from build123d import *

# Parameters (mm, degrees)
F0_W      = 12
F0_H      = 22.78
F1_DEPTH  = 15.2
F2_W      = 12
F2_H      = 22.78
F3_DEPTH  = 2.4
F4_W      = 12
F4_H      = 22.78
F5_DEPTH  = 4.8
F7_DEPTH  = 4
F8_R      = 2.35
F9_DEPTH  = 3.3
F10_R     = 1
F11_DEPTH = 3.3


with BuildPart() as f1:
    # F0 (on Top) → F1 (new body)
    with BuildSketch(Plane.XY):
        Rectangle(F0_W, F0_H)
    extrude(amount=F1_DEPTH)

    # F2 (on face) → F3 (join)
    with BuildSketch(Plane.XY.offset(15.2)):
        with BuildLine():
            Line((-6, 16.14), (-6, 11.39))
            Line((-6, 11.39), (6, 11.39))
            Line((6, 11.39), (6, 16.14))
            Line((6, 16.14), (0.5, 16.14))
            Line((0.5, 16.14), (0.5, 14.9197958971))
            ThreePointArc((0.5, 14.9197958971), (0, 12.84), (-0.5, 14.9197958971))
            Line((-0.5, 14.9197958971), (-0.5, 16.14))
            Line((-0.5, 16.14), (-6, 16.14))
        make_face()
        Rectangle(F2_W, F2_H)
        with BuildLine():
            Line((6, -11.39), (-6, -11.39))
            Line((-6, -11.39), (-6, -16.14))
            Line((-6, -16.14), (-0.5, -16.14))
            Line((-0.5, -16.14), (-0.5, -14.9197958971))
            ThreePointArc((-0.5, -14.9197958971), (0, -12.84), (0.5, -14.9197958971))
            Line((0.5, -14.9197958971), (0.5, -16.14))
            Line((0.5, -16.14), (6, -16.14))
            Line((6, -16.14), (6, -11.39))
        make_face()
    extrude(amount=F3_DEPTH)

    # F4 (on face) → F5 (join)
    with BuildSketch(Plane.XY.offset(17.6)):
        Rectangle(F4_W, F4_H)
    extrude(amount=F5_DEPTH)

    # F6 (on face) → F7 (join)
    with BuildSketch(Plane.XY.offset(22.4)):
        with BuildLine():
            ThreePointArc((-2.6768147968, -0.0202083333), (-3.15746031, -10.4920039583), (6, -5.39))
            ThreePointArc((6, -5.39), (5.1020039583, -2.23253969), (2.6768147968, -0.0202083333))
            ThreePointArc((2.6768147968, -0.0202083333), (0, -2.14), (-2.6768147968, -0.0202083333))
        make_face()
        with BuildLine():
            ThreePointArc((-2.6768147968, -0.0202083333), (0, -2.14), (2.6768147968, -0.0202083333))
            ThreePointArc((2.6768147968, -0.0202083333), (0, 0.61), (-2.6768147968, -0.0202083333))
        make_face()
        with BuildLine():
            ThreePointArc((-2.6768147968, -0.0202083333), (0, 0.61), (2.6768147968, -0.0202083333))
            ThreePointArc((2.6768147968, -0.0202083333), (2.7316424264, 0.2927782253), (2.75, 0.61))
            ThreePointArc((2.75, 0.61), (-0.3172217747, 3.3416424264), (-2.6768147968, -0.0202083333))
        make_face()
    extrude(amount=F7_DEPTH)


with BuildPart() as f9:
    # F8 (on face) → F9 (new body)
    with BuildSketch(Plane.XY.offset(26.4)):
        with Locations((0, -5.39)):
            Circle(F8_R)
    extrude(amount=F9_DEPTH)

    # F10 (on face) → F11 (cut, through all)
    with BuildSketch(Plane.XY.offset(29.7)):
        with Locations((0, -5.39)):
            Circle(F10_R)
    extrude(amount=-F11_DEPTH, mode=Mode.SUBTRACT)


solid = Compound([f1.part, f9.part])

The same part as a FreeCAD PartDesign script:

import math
import FreeCAD as App
import Part
import Sketcher
Q = App.Units.Quantity

doc = App.newDocument("Part")
body = doc.addObject("PartDesign::Body", "Body")

# Sketch on XY plane
sketch1 = body.newObject("Sketcher::SketchObject", "Sketch")
sketch1.AttachmentSupport = (doc.getObject("XY_Plane"), [""])
sketch1.MapMode = "FlatFace"
sketch1.addGeometry(Part.LineSegment(App.Vector(-6, 11, 0), App.Vector(-6, -11, 0)), False)
sketch1.addGeometry(Part.LineSegment(App.Vector(-6, -11, 0), App.Vector(6, -11, 0)), False)
sketch1.addGeometry(Part.LineSegment(App.Vector(6, -11, 0), App.Vector(6, 11, 0)), False)
sketch1.addGeometry(Part.LineSegment(App.Vector(6, 11, 0), App.Vector(-6, 11, 0)), False)
sketch1.addConstraint(Sketcher.Constraint("Coincident", 0, 2, 1, 1))
sketch1.addConstraint(Sketcher.Constraint("Coincident", 1, 2, 2, 1))
sketch1.addConstraint(Sketcher.Constraint("Coincident", 2, 2, 3, 1))
sketch1.addConstraint(Sketcher.Constraint("Coincident", 3, 2, 0, 1))
sketch1.addConstraint(Sketcher.Constraint("Vertical", 0))
sketch1.addConstraint(Sketcher.Constraint("Horizontal", 1))
sketch1.addConstraint(Sketcher.Constraint("Vertical", 2))
sketch1.addConstraint(Sketcher.Constraint("Horizontal", 3))
sketch1.addConstraint(Sketcher.Constraint("Symmetric", 0, 2, 2, 2, -1, 1))
sketch1.addConstraint(Sketcher.Constraint("DistanceX", 1, 1, 1, 2, Q("12 mm")))
sketch1.addConstraint(Sketcher.Constraint("DistanceY", 0, 2, 0, 1, Q("22.78 mm")))
pad1 = body.newObject("PartDesign::Pad", "Pad")
pad1.Profile = sketch1
pad1.Length = 15.2

# Sketch on XY plane
sketch2 = body.newObject("Sketcher::SketchObject", "Sketch001")
sketch2.AttachmentSupport = (doc.getObject("XY_Plane"), [""])
sketch2.MapMode = "FlatFace"
sketch2.AttachmentOffset = App.Placement(App.Vector(0, 0, 15.2), App.Rotation())
sketch2.addGeometry(Part.LineSegment(App.Vector(-6, 16.1, 0), App.Vector(-6, -16.1, 0)), False)
sketch2.addGeometry(Part.LineSegment(App.Vector(-6, -16.1, 0), App.Vector(-0.5, -16.1, 0)), False)
sketch2.addGeometry(Part.LineSegment(App.Vector(-0.5, -16.1, 0), App.Vector(-0.5, -14.9, 0)), False)
sketch2.addGeometry(Part.ArcOfCircle(Part.Circle(App.Vector(0, -13.9, 0), App.Vector(0, 0, 1), 1.1), math.radians(-63), math.radians(243)), False)
sketch2.addGeometry(Part.LineSegment(App.Vector(0.5, -14.9, 0), App.Vector(0.5, -16.1, 0)), False)
sketch2.addGeometry(Part.LineSegment(App.Vector(0.5, -16.1, 0), App.Vector(6, -16.1, 0)), False)
sketch2.addGeometry(Part.LineSegment(App.Vector(6, -16.1, 0), App.Vector(6, 16.1, 0)), False)
sketch2.addGeometry(Part.LineSegment(App.Vector(6, 16.1, 0), App.Vector(0.5, 16.1, 0)), False)
sketch2.addGeometry(Part.LineSegment(App.Vector(0.5, 16.1, 0), App.Vector(0.5, 14.9, 0)), False)
sketch2.addGeometry(Part.ArcOfCircle(Part.Circle(App.Vector(0, 13.9, 0), App.Vector(0, 0, 1), 1.1), math.radians(117), math.radians(423)), False)
sketch2.addGeometry(Part.LineSegment(App.Vector(-0.5, 14.9, 0), App.Vector(-0.5, 16.1, 0)), False)
sketch2.addGeometry(Part.LineSegment(App.Vector(-0.5, 16.1, 0), App.Vector(-6, 16.1, 0)), False)
sketch2.addConstraint(Sketcher.Constraint("Coincident", 0, 2, 1, 1))
sketch2.addConstraint(Sketcher.Constraint("Coincident", 1, 2, 2, 1))
sketch2.addConstraint(Sketcher.Constraint("Coincident", 2, 2, 3, 2))
sketch2.addConstraint(Sketcher.Constraint("Coincident", 3, 1, 4, 1))
sketch2.addConstraint(Sketcher.Constraint("Coincident", 4, 2, 5, 1))
sketch2.addConstraint(Sketcher.Constraint("Coincident", 5, 2, 6, 1))
sketch2.addConstraint(Sketcher.Constraint("Coincident", 6, 2, 7, 1))
sketch2.addConstraint(Sketcher.Constraint("Coincident", 7, 2, 8, 1))
sketch2.addConstraint(Sketcher.Constraint("Coincident", 8, 2, 9, 2))
sketch2.addConstraint(Sketcher.Constraint("Coincident", 9, 1, 10, 1))
sketch2.addConstraint(Sketcher.Constraint("Coincident", 10, 2, 11, 1))
sketch2.addConstraint(Sketcher.Constraint("Coincident", 11, 2, 0, 1))
sketch2.addConstraint(Sketcher.Constraint("Vertical", 0))
sketch2.addConstraint(Sketcher.Constraint("Horizontal", 1))
sketch2.addConstraint(Sketcher.Constraint("Vertical", 2))
sketch2.addConstraint(Sketcher.Constraint("Vertical", 4))
sketch2.addConstraint(Sketcher.Constraint("Horizontal", 5))
sketch2.addConstraint(Sketcher.Constraint("Vertical", 6))
sketch2.addConstraint(Sketcher.Constraint("Horizontal", 7))
sketch2.addConstraint(Sketcher.Constraint("Vertical", 8))
sketch2.addConstraint(Sketcher.Constraint("Vertical", 10))
sketch2.addConstraint(Sketcher.Constraint("Horizontal", 11))
sketch2.addConstraint(Sketcher.Constraint("Equal", 3, 9))
sketch2.addConstraint(Sketcher.Constraint("Symmetric", 3, 3, 9, 3, -1, 1))
sketch2.addConstraint(Sketcher.Constraint("Symmetric", 0, 2, 6, 2, -1, 1))
sketch2.addConstraint(Sketcher.Constraint("Symmetric", 4, 2, 10, 2, -1, 1))
sketch2.addConstraint(Sketcher.Constraint("Symmetric", 2, 2, 3, 1, -2))
sketch2.addConstraint(Sketcher.Constraint("Symmetric", 7, 2, 10, 2, -2))
sketch2.addConstraint(Sketcher.Constraint("Radius", 3, Q("1.1 mm")))
sketch2.addConstraint(Sketcher.Constraint("DistanceX", 1, 1, 1, 2, Q("5.5 mm")))
sketch2.addConstraint(Sketcher.Constraint("DistanceX", 0, 2, -1, 1, Q("6 mm")))
sketch2.addConstraint(Sketcher.Constraint("DistanceY", 0, 2, 0, 1, Q("32.28 mm")))
sketch2.addConstraint(Sketcher.Constraint("DistanceY", 0, 2, 3, 3, Q("2.2 mm")))
pad2 = body.newObject("PartDesign::Pad", "Pad001")
pad2.Profile = sketch2
pad2.Length = 2.4

# Sketch on XY plane
sketch3 = body.newObject("Sketcher::SketchObject", "Sketch002")
sketch3.AttachmentSupport = (doc.getObject("XY_Plane"), [""])
sketch3.MapMode = "FlatFace"
sketch3.AttachmentOffset = App.Placement(App.Vector(0, 0, 17.6), App.Rotation())
sketch3.addGeometry(Part.LineSegment(App.Vector(-6, 11, 0), App.Vector(-6, -11, 0)), False)
sketch3.addGeometry(Part.LineSegment(App.Vector(-6, -11, 0), App.Vector(6, -11, 0)), False)
sketch3.addGeometry(Part.LineSegment(App.Vector(6, -11, 0), App.Vector(6, 11, 0)), False)
sketch3.addGeometry(Part.LineSegment(App.Vector(6, 11, 0), App.Vector(-6, 11, 0)), False)
sketch3.addConstraint(Sketcher.Constraint("Coincident", 0, 2, 1, 1))
sketch3.addConstraint(Sketcher.Constraint("Coincident", 1, 2, 2, 1))
sketch3.addConstraint(Sketcher.Constraint("Coincident", 2, 2, 3, 1))
sketch3.addConstraint(Sketcher.Constraint("Coincident", 3, 2, 0, 1))
sketch3.addConstraint(Sketcher.Constraint("Vertical", 0))
sketch3.addConstraint(Sketcher.Constraint("Horizontal", 1))
sketch3.addConstraint(Sketcher.Constraint("Vertical", 2))
sketch3.addConstraint(Sketcher.Constraint("Horizontal", 3))
sketch3.addConstraint(Sketcher.Constraint("Symmetric", 0, 2, 2, 2, -1, 1))
sketch3.addConstraint(Sketcher.Constraint("DistanceX", 1, 1, 1, 2, Q("12 mm")))
sketch3.addConstraint(Sketcher.Constraint("DistanceY", 0, 2, 0, 1, Q("22.78 mm")))
pad3 = body.newObject("PartDesign::Pad", "Pad002")
pad3.Profile = sketch3
pad3.Length = 4.8

# Sketch on XY plane
sketch4 = body.newObject("Sketcher::SketchObject", "Sketch003")
sketch4.AttachmentSupport = (doc.getObject("XY_Plane"), [""])
sketch4.MapMode = "FlatFace"
sketch4.AttachmentOffset = App.Placement(App.Vector(0, 0, 22.4), App.Rotation())
sketch4.addGeometry(Part.ArcOfCircle(Part.Circle(App.Vector(0, -5.4, 0), App.Vector(0, 0, 1), 6), math.radians(116), math.radians(360)), False)
sketch4.addGeometry(Part.ArcOfCircle(Part.Circle(App.Vector(0, -5.4, 0), App.Vector(0, 0, 1), 6), math.radians(0), math.radians(64)), False)
sketch4.addGeometry(Part.ArcOfCircle(Part.Circle(App.Vector(0, 0.6, 0), App.Vector(0, 0, 1), 2.7), math.radians(-13.25), math.radians(0)), False)
sketch4.addGeometry(Part.ArcOfCircle(Part.Circle(App.Vector(0, 0.6, 0), App.Vector(0, 0, 1), 2.8), math.radians(0), math.radians(193)), False)
sketch4.addConstraint(Sketcher.Constraint("Tangent", 0, 2, 1, 1))
sketch4.addConstraint(Sketcher.Constraint("Coincident", 1, 2, 2, 1))
sketch4.addConstraint(Sketcher.Constraint("Tangent", 2, 2, 3, 1))
sketch4.addConstraint(Sketcher.Constraint("Coincident", 3, 2, 0, 1))
sketch4.addConstraint(Sketcher.Constraint("Equal", 0, 1))
sketch4.addConstraint(Sketcher.Constraint("Equal", 2, 3))
sketch4.addConstraint(Sketcher.Constraint("Symmetric", 1, 2, 3, 2, -2))
sketch4.addConstraint(Sketcher.Constraint("Horizontal", 1, 3, 0, 2))
sketch4.addConstraint(Sketcher.Constraint("Horizontal", 3, 3, 2, 2))
sketch4.addConstraint(Sketcher.Constraint("Radius", 0, Q("6 mm")))
sketch4.addConstraint(Sketcher.Constraint("Radius", 2, Q("2.75 mm")))
sketch4.addConstraint(Sketcher.Constraint("DistanceY", 0, 3, 2, 3, Q("6 mm")))
sketch4.addConstraint(Sketcher.Constraint("DistanceY", 0, 3, -1, 1, Q("5.39 mm")))
pad4 = body.newObject("PartDesign::Pad", "Pad003")
pad4.Profile = sketch4
pad4.Length = 4
body2 = doc.addObject("PartDesign::Body", "Body001")

# Sketch on XY plane
sketch5 = body2.newObject("Sketcher::SketchObject", "Sketch004")
sketch5.AttachmentSupport = (doc.getObject("XY_Plane001"), [""])
sketch5.MapMode = "FlatFace"
sketch5.AttachmentOffset = App.Placement(App.Vector(0, 0, 26.4), App.Rotation())
sketch5.addGeometry(Part.Circle(App.Vector(0, -5.4, 0), App.Vector(0, 0, 1), 2.4), False)
sketch5.addConstraint(Sketcher.Constraint("PointOnObject", 0, 3, -2))
sketch5.addConstraint(Sketcher.Constraint("Diameter", 0, Q("4.7 mm")))
sketch5.addConstraint(Sketcher.Constraint("DistanceY", 0, 3, -1, 1, Q("5.39 mm")))
pad5 = body2.newObject("PartDesign::Pad", "Pad004")
pad5.Profile = sketch5
pad5.Length = 3.3

# Sketch on XY plane
sketch6 = body2.newObject("Sketcher::SketchObject", "Sketch005")
sketch6.AttachmentSupport = (doc.getObject("XY_Plane001"), [""])
sketch6.MapMode = "FlatFace"
sketch6.AttachmentOffset = App.Placement(App.Vector(0, 0, 29.7), App.Rotation())
sketch6.addGeometry(Part.Circle(App.Vector(0, -5.4, 0), App.Vector(0, 0, 1), 1), False)
sketch6.addConstraint(Sketcher.Constraint("PointOnObject", 0, 3, -2))
sketch6.addConstraint(Sketcher.Constraint("Diameter", 0, Q("2 mm")))
sketch6.addConstraint(Sketcher.Constraint("DistanceY", 0, 3, -1, 1, Q("5.39 mm")))
pocket1 = body2.newObject("PartDesign::Pocket", "Pocket")
pocket1.Profile = sketch6
pocket1.Type = "ThroughAll"

doc.recompute()
